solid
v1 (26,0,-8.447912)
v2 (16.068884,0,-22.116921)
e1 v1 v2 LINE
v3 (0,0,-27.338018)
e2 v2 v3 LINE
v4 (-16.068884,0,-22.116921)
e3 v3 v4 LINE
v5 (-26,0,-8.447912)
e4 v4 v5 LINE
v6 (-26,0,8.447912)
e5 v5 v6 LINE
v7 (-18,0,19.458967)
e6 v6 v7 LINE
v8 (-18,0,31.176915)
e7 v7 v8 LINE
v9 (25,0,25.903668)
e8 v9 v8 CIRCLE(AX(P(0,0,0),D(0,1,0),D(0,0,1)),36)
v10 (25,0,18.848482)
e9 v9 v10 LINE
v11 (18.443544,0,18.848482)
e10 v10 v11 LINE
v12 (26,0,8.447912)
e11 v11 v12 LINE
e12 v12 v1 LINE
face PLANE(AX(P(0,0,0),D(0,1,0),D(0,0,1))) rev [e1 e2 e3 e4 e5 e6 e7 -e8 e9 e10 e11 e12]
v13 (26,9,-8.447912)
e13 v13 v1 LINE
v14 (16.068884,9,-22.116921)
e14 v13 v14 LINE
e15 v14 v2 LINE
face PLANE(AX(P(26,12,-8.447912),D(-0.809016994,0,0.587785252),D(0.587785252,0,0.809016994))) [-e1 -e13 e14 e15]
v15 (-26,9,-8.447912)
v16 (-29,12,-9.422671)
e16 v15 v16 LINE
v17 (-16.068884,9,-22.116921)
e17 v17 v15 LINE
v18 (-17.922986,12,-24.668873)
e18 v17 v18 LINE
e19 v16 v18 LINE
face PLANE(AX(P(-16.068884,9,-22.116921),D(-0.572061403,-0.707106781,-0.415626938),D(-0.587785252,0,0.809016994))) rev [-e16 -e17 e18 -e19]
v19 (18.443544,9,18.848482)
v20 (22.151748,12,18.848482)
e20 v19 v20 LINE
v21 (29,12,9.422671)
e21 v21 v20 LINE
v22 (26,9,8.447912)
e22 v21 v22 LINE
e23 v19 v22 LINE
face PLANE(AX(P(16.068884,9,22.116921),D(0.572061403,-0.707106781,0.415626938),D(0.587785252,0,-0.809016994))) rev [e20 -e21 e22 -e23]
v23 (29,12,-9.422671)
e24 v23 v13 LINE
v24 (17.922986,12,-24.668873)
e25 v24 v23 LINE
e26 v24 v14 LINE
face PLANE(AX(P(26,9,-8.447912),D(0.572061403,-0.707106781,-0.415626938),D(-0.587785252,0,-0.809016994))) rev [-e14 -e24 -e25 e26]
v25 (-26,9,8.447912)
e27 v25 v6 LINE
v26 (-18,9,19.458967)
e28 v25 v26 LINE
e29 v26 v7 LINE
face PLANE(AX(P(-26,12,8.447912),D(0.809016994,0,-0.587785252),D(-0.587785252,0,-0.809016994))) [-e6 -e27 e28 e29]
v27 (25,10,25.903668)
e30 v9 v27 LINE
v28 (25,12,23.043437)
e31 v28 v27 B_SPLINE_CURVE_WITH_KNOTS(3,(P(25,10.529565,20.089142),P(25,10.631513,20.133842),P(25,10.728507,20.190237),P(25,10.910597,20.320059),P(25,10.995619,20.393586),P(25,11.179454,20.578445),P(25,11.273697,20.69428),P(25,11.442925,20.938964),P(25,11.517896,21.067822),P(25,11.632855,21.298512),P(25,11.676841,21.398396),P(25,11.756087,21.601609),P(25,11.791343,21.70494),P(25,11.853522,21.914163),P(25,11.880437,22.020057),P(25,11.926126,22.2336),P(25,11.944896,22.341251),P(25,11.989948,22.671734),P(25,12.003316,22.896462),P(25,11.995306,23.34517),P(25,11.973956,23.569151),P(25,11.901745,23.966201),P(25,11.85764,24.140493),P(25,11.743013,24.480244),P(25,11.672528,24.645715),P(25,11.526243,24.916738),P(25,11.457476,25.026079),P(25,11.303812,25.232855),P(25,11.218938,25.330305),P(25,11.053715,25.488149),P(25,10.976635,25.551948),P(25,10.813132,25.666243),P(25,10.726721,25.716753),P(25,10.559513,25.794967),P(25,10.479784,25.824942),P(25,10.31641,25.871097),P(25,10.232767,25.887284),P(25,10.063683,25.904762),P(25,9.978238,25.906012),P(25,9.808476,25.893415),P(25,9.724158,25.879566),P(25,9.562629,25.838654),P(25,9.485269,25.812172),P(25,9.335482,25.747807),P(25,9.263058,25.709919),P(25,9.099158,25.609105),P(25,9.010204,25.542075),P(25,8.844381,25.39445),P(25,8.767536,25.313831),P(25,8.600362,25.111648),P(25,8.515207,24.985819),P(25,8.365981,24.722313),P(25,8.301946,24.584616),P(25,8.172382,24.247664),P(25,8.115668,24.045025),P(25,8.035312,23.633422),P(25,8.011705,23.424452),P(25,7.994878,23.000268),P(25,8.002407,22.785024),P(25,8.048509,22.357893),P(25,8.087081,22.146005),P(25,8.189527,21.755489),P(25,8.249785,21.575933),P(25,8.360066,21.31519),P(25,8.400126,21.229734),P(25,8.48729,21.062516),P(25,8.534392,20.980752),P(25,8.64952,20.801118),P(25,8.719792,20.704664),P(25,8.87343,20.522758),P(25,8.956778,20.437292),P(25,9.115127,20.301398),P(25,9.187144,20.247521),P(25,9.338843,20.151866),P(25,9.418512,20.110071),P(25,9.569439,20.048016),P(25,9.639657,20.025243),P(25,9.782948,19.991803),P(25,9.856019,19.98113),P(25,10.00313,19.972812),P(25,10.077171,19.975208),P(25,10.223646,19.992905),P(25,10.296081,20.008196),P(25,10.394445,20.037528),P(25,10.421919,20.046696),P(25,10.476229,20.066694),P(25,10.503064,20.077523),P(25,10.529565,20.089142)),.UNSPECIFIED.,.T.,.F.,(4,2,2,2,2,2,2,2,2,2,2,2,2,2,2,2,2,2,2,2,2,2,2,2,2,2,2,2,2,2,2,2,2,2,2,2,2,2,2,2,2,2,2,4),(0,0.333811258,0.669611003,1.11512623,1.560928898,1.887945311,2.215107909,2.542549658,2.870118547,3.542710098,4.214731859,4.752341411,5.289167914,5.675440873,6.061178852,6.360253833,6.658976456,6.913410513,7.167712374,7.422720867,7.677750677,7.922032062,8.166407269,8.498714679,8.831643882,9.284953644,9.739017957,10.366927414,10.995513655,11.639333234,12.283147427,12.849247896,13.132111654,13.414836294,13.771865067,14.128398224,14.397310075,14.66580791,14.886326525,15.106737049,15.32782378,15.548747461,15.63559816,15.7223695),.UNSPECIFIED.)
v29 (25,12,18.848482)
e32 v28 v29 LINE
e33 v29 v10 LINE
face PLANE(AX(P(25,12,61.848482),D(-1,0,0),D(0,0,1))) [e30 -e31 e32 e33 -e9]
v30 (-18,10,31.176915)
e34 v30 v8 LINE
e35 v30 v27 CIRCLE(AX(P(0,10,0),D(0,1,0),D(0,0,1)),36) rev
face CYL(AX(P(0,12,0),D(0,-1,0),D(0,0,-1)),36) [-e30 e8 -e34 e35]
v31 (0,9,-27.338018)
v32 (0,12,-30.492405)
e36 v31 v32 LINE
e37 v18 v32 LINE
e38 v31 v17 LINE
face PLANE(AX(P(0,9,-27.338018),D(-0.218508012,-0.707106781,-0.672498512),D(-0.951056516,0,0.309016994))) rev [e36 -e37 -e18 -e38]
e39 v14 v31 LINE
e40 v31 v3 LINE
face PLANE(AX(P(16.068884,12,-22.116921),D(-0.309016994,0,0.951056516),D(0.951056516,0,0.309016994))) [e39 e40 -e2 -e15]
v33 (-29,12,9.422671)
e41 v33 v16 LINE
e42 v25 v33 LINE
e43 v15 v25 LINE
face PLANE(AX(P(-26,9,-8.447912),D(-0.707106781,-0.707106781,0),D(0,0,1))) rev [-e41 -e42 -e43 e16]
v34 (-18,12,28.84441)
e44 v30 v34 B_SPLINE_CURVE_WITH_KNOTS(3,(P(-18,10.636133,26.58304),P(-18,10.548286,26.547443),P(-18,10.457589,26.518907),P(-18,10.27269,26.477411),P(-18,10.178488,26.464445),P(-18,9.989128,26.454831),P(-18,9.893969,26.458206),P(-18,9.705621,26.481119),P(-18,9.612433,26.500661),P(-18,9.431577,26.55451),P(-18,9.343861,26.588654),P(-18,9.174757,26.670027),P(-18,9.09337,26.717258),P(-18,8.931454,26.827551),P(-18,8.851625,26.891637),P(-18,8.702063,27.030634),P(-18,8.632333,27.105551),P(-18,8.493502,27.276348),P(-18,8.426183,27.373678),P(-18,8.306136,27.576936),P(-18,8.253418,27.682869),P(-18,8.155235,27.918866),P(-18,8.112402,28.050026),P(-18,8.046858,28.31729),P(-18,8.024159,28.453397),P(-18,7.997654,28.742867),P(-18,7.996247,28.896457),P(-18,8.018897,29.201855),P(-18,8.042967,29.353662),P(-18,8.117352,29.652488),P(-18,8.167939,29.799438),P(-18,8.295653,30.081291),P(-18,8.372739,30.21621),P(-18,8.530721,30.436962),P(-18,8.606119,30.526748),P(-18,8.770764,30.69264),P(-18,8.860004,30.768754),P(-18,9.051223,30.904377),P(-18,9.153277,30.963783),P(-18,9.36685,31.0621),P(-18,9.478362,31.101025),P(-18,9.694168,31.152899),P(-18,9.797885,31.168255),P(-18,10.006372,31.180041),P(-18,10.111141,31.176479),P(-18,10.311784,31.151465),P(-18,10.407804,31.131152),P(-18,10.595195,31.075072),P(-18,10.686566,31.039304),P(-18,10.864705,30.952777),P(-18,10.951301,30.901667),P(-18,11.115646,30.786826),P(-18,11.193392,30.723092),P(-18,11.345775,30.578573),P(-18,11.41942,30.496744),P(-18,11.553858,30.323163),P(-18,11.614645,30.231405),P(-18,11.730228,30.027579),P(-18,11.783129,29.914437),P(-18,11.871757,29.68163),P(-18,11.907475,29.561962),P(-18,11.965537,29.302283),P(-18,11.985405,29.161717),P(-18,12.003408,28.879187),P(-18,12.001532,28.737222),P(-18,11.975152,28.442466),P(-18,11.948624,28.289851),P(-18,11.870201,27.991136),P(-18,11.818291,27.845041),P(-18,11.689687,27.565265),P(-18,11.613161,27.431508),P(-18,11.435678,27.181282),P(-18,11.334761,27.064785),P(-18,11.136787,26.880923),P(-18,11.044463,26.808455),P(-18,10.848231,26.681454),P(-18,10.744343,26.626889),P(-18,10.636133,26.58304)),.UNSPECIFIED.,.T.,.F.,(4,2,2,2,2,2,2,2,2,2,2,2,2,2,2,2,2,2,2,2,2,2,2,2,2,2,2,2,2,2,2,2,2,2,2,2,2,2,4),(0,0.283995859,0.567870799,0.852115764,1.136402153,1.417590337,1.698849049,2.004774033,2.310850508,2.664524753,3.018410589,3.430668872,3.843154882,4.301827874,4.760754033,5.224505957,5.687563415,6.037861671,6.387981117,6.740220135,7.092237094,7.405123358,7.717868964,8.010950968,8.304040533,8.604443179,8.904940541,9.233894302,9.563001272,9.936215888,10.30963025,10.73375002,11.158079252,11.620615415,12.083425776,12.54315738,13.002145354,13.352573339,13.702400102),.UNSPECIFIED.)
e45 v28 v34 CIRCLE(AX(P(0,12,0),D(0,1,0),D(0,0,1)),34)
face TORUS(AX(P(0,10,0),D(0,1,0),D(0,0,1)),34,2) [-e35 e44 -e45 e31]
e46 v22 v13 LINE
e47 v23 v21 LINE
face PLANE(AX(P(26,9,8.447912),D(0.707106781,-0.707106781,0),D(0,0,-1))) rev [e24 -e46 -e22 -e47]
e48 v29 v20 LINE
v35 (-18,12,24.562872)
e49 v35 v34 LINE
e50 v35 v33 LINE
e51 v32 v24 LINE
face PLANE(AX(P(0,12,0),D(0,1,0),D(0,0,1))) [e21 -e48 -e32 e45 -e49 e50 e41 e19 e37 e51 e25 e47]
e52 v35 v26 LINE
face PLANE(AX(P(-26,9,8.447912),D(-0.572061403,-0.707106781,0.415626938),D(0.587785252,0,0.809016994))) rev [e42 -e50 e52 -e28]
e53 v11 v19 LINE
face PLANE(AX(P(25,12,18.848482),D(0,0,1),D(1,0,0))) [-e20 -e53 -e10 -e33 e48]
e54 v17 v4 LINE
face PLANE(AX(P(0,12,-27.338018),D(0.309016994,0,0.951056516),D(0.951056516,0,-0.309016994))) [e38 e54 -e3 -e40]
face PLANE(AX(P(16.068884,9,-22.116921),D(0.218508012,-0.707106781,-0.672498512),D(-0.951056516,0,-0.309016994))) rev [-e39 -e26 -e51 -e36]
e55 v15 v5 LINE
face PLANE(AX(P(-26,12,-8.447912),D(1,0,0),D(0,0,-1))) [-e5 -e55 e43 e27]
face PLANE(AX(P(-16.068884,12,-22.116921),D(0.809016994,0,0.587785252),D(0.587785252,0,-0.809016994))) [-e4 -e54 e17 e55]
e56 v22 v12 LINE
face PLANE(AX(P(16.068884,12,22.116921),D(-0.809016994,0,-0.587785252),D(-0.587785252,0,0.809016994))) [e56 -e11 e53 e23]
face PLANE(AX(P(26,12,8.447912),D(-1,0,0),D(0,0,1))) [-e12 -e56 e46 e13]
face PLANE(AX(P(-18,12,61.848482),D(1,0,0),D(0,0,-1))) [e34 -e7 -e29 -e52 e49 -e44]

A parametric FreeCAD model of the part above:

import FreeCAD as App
import Part
import Sketcher
Q = App.Units.Quantity


def edges_at(feature, points):
    """Names of the edges that pass closest to the given points."""
    edges = feature.Shape.Edges
    near = lambda p: min(range(len(edges)), key=lambda i: edges[i].distToShape(Part.Vertex(*p))[0])
    return sorted({f"Edge{near(p) + 1}" for p in points})


def add_polygon(sketch, points):
    """Adds a closed chain of lines whose ends are joined by coincident constraints."""
    first, n = sketch.GeometryCount, len(points)
    for a, b in zip(points, points[1:] + points[:1]):
        sketch.addGeometry(Part.LineSegment(App.Vector(*a, 0), App.Vector(*b, 0)), False)
    for i in range(n):
        sketch.addConstraint(Sketcher.Constraint("Coincident", first + i, 2, first + (i + 1) % n, 1))

doc = App.newDocument("Part")
params = doc.addObject("Spreadsheet::Sheet", "Params")
for row, (alias, value) in enumerate([
    ("sketch1_diameter", "72 mm"),
    ("pad1_length", "12 mm"),
    ("fillet_radius", "2 mm"),
    ("chamfer_size", "3 mm"),
    ("sketch2_width", "43 mm"),
], start=1):
    params.set(f"A{row}", alias)
    params.set(f"B{row}", "=" + value)
    params.setAlias(f"B{row}", alias)

body = doc.addObject("PartDesign::Body", "Body")

sketch1 = body.newObject("Sketcher::SketchObject", "Sketch")
sketch1.AttachmentSupport = (doc.getObject("XZ_Plane"), [""])
sketch1.MapMode = "FlatFace"
sketch1.addGeometry(Part.Circle(App.Vector(0, 0, 0), App.Vector(0, 0, 1), 36), False)
add_polygon(sketch1, [(0, -27), (16, -22), (26, -8), (26, 8), (16, 22), (0, 27), (-16, 22), (-26, 8), (-26, -8), (-16, -22)])
sketch1.addConstraint([
    Sketcher.Constraint("Vertical", 3),
    Sketcher.Constraint("Vertical", 8),
    Sketcher.Constraint("Coincident", 0, 3, -1, 1),
    Sketcher.Constraint("Symmetric", 1, 2, 6, 2, -1, 1),
    Sketcher.Constraint("Symmetric", 2, 2, 7, 2, -1, 1),
    Sketcher.Constraint("Symmetric", 4, 2, 9, 2, -1, 1),
    Sketcher.Constraint("Symmetric", 5, 2, 10, 2, -1, 1),
    Sketcher.Constraint("Symmetric", 4, 2, 6, 2, -2),
    Sketcher.Constraint("PointOnObject", 5, 2, -2),
    Sketcher.Constraint("Parallel", 4, 9),
    Sketcher.Constraint("Horizontal", 3, 2, 7, 2),
    Sketcher.Constraint("Equal", 1, 2),
    Sketcher.Constraint("Diameter", 0, 72.0),
    Sketcher.Constraint("Angle", 1, Q("18 deg")),
    Sketcher.Constraint("Angle", 2, Q("54 deg")),
    Sketcher.Constraint("DistanceX", -1, 1, 2, 2, 26.0),
    Sketcher.Constraint("DistanceY", 3, 1, 3, 2, 16.895824),
])
sketch1.setExpression("Constraints[22]", "Params.sketch1_diameter")
pad1 = body.newObject("PartDesign::Pad", "Pad")
pad1.Profile = sketch1
pad1.setExpression("Length", "Params.pad1_length")
pad1.Reversed = True
doc.recompute()

fillet = body.newObject("PartDesign::Fillet", "Fillet")
fillet.Base = (pad1, edges_at(pad1, [(0, 12, -36)]))
fillet.setExpression("Radius", "Params.fillet_radius")
doc.recompute()

chamfer = body.newObject("PartDesign::Chamfer", "Chamfer")
chamfer.Base = (fillet, edges_at(fillet, [
    (21.034, 12, -15.282),
    (8.034, 12, -24.727),
    (-8.034, 12, -24.727),
    (-21.034, 12, -15.282),
    (-26, 12, 0),
    (-21.034, 12, 15.282),
    (-8.034, 12, 24.727),
    (8.034, 12, 24.727),
    (21.034, 12, 15.282),
    (26, 12, 0),
]))
chamfer.setExpression("Size", "Params.chamfer_size")

sketch2 = body.newObject("Sketcher::SketchObject", "Sketch001")
sketch2.AttachmentSupport = (doc.getObject("XZ_Plane"), [""])
sketch2.MapMode = "FlatFace"
add_polygon(sketch2, [(-18, 19), (-18, 62), (25, 62), (25, 19)])
sketch2.addConstraint([
    Sketcher.Constraint("Vertical", 0),
    Sketcher.Constraint("Horizontal", 1),
    Sketcher.Constraint("Vertical", 2),
    Sketcher.Constraint("Horizontal", 3),
    Sketcher.Constraint("Equal", 3, 0),
    Sketcher.Constraint("DistanceX", 1, 1, 1, 2, 43.0),
    Sketcher.Constraint("DistanceX", 0, 2, -1, 1, 18.0),
    Sketcher.Constraint("DistanceY", -1, 1, 0, 2, 61.848482),
])
sketch2.setExpression("Constraints[9]", "Params.sketch2_width")
pocket1 = body.newObject("PartDesign::Pocket", "Pocket")
pocket1.Profile = sketch2
pocket1.Type = "ThroughAll"

doc.recompute()
